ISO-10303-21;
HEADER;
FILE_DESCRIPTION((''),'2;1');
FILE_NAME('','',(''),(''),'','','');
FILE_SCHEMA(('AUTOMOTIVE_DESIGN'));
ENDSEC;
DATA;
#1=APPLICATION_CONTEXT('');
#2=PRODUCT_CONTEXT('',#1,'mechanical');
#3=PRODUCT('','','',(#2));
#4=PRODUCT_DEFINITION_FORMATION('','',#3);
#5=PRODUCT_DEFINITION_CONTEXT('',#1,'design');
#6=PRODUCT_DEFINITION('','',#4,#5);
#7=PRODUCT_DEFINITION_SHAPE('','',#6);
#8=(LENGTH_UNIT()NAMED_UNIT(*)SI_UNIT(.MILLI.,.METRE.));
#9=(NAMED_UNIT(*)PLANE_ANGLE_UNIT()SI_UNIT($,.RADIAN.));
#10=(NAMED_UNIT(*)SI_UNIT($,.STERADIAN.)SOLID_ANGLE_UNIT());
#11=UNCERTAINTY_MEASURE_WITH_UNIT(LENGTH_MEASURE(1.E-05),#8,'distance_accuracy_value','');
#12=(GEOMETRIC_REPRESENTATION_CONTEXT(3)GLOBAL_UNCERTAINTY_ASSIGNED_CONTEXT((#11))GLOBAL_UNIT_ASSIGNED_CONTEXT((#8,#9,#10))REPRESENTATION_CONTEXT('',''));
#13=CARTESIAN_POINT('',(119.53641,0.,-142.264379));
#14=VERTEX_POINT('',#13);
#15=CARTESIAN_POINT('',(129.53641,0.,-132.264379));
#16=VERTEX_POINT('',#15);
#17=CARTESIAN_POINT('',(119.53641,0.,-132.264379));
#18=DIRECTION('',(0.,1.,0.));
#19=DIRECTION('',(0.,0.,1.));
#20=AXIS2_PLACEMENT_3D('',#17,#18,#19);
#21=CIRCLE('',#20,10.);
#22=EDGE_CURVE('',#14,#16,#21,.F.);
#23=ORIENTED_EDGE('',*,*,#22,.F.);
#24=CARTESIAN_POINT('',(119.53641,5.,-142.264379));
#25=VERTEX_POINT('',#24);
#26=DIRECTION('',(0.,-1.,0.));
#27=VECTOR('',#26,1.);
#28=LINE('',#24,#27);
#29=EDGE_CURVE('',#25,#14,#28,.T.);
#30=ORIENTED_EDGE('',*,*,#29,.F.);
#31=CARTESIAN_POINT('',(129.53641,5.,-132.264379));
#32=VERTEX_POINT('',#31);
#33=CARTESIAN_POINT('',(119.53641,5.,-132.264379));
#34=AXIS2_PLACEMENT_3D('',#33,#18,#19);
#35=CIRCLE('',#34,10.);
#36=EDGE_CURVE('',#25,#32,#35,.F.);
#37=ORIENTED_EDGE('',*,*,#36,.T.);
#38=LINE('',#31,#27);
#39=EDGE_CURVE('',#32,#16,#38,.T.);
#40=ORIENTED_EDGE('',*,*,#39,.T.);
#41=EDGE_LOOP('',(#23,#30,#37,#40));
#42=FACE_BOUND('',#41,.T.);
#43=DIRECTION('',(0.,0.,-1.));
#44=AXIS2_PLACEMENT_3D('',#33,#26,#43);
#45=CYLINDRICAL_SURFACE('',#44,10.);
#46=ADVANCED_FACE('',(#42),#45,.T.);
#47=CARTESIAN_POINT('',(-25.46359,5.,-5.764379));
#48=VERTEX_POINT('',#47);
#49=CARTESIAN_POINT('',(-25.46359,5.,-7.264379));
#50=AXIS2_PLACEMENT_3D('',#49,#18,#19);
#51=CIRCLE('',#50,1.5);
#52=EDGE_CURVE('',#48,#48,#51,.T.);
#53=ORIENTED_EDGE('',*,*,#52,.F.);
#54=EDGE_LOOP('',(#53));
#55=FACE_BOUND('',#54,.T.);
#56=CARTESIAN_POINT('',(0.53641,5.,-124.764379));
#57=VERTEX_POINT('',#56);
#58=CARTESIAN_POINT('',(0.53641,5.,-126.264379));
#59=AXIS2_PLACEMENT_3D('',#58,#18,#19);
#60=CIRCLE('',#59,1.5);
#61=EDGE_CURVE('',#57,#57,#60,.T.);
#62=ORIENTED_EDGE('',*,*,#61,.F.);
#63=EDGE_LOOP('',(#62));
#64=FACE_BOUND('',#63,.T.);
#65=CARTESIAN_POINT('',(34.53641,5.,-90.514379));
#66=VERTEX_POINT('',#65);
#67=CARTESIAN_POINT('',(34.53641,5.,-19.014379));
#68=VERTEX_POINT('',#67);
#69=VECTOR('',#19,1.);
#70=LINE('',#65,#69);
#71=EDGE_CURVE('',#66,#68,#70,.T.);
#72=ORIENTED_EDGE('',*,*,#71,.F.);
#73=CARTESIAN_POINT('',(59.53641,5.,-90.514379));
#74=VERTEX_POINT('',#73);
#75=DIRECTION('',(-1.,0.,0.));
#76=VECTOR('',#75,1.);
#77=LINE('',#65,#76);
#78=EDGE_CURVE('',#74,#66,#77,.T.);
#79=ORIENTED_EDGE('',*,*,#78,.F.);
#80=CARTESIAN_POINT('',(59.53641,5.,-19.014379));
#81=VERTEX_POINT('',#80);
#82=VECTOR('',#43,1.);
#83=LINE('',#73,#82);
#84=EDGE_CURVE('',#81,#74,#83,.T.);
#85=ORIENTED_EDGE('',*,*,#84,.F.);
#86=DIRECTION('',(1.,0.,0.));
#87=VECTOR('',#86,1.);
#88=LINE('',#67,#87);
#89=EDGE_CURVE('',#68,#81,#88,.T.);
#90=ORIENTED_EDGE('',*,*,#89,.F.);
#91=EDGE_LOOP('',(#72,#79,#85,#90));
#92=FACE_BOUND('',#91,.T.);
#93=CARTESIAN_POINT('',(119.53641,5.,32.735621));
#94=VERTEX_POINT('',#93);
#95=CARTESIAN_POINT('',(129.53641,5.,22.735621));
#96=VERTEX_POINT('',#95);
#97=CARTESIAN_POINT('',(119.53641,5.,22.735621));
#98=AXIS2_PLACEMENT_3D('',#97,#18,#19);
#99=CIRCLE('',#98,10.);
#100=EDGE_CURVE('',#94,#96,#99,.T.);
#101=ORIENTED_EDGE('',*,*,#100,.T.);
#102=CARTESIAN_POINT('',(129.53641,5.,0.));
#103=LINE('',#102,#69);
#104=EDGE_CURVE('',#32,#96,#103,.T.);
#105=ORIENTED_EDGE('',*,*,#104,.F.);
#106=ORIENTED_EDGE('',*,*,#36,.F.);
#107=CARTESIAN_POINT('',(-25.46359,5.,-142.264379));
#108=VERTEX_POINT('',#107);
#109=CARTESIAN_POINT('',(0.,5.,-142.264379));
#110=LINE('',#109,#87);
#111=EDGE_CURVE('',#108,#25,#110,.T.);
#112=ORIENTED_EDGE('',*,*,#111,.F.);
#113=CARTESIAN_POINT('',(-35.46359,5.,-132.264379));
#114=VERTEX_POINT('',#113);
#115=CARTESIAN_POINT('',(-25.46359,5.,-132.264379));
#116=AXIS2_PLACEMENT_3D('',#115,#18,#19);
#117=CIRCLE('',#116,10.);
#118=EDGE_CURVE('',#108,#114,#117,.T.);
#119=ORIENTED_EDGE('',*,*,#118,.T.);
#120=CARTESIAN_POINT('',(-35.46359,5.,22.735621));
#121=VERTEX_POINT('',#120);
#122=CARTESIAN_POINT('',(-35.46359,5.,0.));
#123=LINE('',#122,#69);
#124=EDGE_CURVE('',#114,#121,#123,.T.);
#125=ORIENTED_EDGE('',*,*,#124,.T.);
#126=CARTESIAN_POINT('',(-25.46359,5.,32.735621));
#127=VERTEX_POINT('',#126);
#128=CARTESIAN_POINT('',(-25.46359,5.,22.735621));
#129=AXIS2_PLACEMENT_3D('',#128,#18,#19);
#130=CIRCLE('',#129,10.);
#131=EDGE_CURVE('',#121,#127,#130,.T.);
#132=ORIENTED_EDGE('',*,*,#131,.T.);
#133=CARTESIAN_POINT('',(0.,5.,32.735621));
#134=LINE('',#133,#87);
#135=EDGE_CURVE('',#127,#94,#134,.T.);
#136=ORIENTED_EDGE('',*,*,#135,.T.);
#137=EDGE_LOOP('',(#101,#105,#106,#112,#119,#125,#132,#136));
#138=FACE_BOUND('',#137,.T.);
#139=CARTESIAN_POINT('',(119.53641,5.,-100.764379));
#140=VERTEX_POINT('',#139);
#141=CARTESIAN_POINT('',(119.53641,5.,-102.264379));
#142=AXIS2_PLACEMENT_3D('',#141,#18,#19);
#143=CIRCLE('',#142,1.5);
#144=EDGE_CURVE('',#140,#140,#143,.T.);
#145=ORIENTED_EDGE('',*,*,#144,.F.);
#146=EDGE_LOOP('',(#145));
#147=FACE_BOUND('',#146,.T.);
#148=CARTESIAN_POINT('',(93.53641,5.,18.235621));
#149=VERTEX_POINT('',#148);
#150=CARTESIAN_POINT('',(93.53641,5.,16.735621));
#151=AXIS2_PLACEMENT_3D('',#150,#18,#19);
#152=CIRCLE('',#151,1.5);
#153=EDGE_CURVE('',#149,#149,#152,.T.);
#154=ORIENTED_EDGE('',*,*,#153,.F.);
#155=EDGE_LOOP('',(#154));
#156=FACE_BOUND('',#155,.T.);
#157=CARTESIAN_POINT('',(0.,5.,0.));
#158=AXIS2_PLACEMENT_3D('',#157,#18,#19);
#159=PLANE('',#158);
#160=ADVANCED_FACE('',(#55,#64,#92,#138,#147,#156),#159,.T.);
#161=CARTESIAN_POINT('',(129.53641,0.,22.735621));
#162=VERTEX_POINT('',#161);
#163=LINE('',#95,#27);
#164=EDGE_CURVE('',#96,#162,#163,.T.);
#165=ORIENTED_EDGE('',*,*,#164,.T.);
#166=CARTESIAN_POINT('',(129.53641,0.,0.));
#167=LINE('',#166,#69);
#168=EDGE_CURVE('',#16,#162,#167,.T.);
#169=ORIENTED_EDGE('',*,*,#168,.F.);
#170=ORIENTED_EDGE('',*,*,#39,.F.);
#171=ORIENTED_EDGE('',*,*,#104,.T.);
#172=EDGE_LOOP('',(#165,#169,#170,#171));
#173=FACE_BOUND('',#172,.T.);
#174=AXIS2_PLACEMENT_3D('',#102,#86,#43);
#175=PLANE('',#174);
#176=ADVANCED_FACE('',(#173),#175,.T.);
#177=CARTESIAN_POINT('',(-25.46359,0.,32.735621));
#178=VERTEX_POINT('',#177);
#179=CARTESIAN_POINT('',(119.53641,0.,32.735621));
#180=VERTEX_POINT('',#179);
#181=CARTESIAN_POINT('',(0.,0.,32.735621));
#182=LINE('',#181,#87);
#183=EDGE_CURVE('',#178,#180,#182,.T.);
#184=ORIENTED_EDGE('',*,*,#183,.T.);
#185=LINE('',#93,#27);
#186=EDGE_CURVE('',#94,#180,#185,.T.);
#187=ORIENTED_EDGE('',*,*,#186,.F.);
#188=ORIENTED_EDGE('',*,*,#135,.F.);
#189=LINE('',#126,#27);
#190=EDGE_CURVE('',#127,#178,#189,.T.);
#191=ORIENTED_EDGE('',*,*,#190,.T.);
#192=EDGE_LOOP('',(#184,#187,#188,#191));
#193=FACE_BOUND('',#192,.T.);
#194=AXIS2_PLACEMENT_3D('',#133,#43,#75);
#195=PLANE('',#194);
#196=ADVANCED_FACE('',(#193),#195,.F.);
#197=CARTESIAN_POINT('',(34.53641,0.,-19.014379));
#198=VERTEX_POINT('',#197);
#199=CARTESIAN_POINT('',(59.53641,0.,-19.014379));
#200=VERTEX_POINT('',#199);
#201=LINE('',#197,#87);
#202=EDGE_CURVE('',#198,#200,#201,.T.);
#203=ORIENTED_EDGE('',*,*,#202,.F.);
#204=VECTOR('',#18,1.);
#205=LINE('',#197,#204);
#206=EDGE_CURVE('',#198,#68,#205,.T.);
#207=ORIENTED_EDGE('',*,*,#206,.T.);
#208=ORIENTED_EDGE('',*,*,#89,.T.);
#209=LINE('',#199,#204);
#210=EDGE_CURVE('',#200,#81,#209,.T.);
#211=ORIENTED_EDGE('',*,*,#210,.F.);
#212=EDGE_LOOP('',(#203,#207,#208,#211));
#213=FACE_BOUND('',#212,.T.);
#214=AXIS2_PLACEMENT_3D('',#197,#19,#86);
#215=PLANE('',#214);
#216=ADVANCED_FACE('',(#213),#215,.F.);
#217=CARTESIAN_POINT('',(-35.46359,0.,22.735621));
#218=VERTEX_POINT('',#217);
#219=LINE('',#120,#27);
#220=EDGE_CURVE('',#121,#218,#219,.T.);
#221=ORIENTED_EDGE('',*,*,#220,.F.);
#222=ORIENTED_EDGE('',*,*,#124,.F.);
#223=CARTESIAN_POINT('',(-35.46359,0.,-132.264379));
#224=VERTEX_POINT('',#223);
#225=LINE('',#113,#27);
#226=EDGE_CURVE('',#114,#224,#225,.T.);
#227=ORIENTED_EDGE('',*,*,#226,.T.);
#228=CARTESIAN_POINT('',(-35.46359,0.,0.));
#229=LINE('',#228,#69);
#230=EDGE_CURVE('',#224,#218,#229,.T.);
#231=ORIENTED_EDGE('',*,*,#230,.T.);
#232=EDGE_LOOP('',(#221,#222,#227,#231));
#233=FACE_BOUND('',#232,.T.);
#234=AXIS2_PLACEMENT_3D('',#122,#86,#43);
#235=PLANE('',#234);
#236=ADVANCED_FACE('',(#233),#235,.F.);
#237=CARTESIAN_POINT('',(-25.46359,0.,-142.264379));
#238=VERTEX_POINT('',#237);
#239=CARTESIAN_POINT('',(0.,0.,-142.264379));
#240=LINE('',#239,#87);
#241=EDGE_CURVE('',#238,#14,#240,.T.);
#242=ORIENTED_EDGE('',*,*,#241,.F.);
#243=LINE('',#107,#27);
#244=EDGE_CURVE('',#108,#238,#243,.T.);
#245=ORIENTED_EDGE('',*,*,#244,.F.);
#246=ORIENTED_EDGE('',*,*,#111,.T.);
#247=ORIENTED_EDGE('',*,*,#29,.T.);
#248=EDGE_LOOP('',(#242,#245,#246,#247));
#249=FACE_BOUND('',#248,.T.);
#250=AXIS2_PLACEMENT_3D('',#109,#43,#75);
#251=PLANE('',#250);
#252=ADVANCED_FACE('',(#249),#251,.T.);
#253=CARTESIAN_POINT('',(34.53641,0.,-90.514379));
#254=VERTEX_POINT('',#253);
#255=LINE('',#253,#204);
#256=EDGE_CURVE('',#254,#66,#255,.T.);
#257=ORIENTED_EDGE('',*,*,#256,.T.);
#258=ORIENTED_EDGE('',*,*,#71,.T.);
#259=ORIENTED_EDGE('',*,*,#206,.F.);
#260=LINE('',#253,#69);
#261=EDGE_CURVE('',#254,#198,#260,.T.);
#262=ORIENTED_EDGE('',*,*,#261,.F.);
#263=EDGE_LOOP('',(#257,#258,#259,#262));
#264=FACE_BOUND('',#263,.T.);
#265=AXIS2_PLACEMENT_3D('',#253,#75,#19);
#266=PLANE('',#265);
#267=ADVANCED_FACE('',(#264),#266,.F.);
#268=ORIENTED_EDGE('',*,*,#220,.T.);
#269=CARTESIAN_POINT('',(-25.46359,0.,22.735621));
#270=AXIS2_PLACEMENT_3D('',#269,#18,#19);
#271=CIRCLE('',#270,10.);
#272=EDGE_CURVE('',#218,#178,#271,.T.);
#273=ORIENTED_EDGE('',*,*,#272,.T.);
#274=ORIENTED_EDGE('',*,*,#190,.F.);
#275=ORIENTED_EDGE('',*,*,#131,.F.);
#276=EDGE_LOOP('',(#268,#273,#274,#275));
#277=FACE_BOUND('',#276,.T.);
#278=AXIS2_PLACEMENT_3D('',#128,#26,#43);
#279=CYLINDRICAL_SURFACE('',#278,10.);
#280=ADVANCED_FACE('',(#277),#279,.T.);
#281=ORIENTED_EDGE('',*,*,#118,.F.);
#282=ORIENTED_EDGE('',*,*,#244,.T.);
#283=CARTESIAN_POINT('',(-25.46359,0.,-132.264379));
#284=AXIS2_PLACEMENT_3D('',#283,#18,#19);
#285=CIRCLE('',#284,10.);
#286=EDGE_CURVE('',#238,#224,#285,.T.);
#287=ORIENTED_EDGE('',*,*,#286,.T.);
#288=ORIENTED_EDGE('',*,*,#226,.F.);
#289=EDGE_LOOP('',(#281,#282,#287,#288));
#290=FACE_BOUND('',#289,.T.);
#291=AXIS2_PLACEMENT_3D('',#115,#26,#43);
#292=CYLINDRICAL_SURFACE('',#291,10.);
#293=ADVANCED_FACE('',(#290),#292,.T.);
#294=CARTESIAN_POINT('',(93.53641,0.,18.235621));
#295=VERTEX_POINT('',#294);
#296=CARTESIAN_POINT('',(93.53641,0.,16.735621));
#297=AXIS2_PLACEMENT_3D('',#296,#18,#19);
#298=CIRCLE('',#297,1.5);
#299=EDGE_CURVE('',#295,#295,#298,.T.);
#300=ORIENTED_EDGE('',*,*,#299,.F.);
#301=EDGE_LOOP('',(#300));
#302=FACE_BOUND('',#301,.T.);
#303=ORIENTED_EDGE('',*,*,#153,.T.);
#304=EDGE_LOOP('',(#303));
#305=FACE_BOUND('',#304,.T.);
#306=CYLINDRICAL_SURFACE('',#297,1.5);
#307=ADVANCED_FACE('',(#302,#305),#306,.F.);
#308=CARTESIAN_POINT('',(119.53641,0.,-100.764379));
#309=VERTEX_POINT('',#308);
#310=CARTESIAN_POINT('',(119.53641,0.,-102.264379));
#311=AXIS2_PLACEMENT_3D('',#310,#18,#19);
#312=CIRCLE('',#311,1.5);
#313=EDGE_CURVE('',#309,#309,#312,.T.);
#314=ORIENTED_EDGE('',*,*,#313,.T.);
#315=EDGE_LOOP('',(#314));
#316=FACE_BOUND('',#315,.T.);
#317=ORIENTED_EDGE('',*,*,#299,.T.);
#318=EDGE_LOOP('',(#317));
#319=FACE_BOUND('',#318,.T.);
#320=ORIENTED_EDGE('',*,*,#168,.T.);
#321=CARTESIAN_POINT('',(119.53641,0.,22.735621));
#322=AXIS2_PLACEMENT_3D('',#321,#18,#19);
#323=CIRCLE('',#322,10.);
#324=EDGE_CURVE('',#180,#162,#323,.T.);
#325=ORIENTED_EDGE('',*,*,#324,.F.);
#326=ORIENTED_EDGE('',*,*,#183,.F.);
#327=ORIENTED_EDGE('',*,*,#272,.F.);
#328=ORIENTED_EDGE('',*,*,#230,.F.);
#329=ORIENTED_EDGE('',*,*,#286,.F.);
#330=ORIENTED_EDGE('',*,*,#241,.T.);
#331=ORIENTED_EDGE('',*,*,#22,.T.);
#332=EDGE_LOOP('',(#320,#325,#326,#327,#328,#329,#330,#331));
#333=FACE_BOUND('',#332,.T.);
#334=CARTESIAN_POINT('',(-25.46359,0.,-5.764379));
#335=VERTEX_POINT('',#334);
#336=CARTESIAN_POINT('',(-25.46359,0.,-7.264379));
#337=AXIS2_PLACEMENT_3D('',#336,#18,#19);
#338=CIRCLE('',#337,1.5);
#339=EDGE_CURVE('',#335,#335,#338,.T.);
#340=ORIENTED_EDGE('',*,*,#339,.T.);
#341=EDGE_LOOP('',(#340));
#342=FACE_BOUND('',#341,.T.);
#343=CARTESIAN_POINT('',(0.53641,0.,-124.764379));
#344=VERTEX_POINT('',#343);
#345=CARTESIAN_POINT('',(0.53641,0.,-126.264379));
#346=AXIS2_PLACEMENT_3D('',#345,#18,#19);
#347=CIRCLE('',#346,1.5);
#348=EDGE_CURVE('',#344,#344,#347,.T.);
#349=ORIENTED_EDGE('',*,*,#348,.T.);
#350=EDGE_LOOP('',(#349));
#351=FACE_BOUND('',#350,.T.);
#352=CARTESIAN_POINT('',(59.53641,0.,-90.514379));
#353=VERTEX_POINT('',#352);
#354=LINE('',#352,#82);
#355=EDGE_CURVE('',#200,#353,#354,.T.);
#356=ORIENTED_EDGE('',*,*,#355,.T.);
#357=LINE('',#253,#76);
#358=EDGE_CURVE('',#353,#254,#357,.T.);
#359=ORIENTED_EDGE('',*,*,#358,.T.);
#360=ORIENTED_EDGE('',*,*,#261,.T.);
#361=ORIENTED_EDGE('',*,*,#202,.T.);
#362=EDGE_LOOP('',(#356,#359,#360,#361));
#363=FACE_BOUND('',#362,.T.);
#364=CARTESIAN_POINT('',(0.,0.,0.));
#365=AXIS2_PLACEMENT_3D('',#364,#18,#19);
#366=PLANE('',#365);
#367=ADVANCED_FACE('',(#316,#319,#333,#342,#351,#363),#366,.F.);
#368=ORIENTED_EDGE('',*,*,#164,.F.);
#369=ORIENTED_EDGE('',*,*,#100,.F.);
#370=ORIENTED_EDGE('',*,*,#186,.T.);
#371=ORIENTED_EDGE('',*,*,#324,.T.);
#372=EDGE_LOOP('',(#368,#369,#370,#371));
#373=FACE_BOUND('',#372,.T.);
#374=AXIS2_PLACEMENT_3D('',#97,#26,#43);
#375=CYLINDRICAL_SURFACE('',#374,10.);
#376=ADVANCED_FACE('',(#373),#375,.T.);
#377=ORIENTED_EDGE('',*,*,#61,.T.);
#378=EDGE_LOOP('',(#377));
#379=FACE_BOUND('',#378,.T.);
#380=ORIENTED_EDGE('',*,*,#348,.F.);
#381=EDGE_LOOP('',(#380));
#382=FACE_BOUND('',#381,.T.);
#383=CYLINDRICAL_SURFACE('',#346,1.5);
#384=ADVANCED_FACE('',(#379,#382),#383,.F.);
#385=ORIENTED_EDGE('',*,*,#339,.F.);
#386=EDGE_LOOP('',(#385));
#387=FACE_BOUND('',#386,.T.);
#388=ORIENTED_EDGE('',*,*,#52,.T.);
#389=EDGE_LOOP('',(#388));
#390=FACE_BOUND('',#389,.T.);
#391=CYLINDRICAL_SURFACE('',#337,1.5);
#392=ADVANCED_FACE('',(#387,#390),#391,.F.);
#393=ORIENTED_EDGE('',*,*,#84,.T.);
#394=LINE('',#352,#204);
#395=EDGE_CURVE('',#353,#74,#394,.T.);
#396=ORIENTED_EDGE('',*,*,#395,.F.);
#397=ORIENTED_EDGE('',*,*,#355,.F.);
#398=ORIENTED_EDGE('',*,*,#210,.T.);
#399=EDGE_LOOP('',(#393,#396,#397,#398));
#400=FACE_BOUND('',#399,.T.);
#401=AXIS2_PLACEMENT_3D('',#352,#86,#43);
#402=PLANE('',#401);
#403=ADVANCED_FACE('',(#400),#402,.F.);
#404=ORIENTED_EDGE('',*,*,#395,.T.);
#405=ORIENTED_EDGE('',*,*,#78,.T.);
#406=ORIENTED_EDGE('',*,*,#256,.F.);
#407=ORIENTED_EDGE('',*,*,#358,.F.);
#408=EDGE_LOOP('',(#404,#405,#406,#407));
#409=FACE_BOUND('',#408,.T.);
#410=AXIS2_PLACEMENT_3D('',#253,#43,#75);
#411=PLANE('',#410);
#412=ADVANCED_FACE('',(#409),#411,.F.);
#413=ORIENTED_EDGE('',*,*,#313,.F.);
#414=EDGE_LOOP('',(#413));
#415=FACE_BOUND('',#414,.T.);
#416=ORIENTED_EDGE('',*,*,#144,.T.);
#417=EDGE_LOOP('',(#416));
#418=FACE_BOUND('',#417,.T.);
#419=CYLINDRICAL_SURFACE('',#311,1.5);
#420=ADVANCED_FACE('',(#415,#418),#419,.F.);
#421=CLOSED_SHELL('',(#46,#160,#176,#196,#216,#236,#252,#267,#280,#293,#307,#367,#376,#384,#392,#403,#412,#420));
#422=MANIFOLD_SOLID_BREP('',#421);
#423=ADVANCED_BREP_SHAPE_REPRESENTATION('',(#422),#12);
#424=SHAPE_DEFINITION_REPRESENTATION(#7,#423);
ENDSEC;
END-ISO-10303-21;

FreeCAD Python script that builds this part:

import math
import FreeCAD as App
import Part
import Sketcher

doc = App.newDocument("Part")
body = doc.addObject("PartDesign::Body", "Body")

# Sketch on XZ plane
sketch1 = doc.addObject("Sketcher::SketchObject", "Sketch")
body.addObject(sketch1)
sketch1.AttachmentSupport = (doc.XZ_Plane, [""])
sketch1.MapMode = "FlatFace"
sketch1.addGeometry([
    Part.LineSegment(App.Vector(120, -142, 0), App.Vector(-25, -142, 0)),  # 0
    Part.ArcOfCircle(Part.Circle(App.Vector(-25, -132, 0), App.Vector(0, 0, 1), 10), math.radians(180), math.radians(270)),  # 1
    Part.LineSegment(App.Vector(-35, -132, 0), App.Vector(-35, 23, 0)),  # 2
    Part.ArcOfCircle(Part.Circle(App.Vector(-25, 23, 0), App.Vector(0, 0, 1), 10), math.radians(90), math.radians(180)),  # 3
    Part.LineSegment(App.Vector(-25, 33, 0), App.Vector(120, 33, 0)),  # 4
    Part.ArcOfCircle(Part.Circle(App.Vector(120, 23, 0), App.Vector(0, 0, 1), 10), math.radians(0), math.radians(90)),  # 5
    Part.LineSegment(App.Vector(130, 23, 0), App.Vector(130, -132, 0)),  # 6
    Part.ArcOfCircle(Part.Circle(App.Vector(120, -132, 0), App.Vector(0, 0, 1), 10), math.radians(-90), math.radians(0)),  # 7
], False)
sketch1.addConstraint([
    Sketcher.Constraint("Tangent", 0, 2, 1, 2),
    Sketcher.Constraint("Tangent", 1, 1, 2, 1),
    Sketcher.Constraint("Tangent", 2, 2, 3, 2),
    Sketcher.Constraint("Tangent", 3, 1, 4, 1),
    Sketcher.Constraint("Tangent", 4, 2, 5, 2),
    Sketcher.Constraint("Tangent", 5, 1, 6, 1),
    Sketcher.Constraint("Tangent", 6, 2, 7, 2),
    Sketcher.Constraint("Tangent", 7, 1, 0, 1),
    Sketcher.Constraint("Horizontal", 0),
    Sketcher.Constraint("Vertical", 2),
    Sketcher.Constraint("Horizontal", 4),
    Sketcher.Constraint("Vertical", 6),
    Sketcher.Constraint("Equal", 1, 3),
    Sketcher.Constraint("Equal", 3, 5),
    Sketcher.Constraint("Equal", 5, 7),
    Sketcher.Constraint("Radius", 1, 10.0),
    Sketcher.Constraint("DistanceX", 0, 2, 0, 1, 145.0),
    Sketcher.Constraint("DistanceY", 2, 1, 2, 2, 155.0),
    Sketcher.Constraint("DistanceX", 1, 3, -1, 1, 25.46359),
    Sketcher.Constraint("DistanceY", 1, 3, -1, 1, 132.264379),
])
pad1 = doc.addObject("PartDesign::Pad", "Pad")
body.addObject(pad1)
pad1.Profile = sketch1
pad1.Length = 5
pad1.Reversed = True

# Sketch on XZ plane
sketch2 = doc.addObject("Sketcher::SketchObject", "Sketch001")
body.addObject(sketch2)
sketch2.AttachmentSupport = (doc.XZ_Plane, [""])
sketch2.MapMode = "FlatFace"
sketch2.AttachmentOffset = App.Placement(App.Vector(0, 0, -5), App.Rotation())
sketch2.addGeometry([
    Part.Circle(App.Vector(-25.5, -7.3, 0), App.Vector(0, 0, 1), 1.5),
    Part.Circle(App.Vector(0.5, -126.3, 0), App.Vector(0, 0, 1), 1.5),
    Part.Circle(App.Vector(119.5, -102.3, 0), App.Vector(0, 0, 1), 1.5),
    Part.Circle(App.Vector(93.5, 16.7, 0), App.Vector(0, 0, 1), 1.5),
], False)
sketch2.addConstraint([
    Sketcher.Constraint("Equal", 0, 1),
    Sketcher.Constraint("Equal", 1, 2),
    Sketcher.Constraint("Equal", 2, 3),
    Sketcher.Constraint("Diameter", 0, 3.0),
    Sketcher.Constraint("DistanceX", 0, 3, 1, 3, 26.0),
    Sketcher.Constraint("DistanceY", 1, 3, 0, 3, 119.0),
    Sketcher.Constraint("DistanceX", 1, 3, 2, 3, 119.0),
    Sketcher.Constraint("DistanceY", 1, 3, 2, 3, 24.0),
    Sketcher.Constraint("DistanceX", 0, 3, 3, 3, 119.0),
    Sketcher.Constraint("DistanceY", 0, 3, 3, 3, 24.0),
    Sketcher.Constraint("DistanceX", 0, 3, -1, 1, 25.46359),
    Sketcher.Constraint("DistanceY", 0, 3, -1, 1, 7.264379),
])
pocket1 = doc.addObject("PartDesign::Pocket", "Pocket")
body.addObject(pocket1)
pocket1.Profile = sketch2
pocket1.Length = 5
pocket1.Reversed = True

# Sketch on XZ plane
sketch3 = doc.addObject("Sketcher::SketchObject", "Sketch002")
body.addObject(sketch3)
sketch3.AttachmentSupport = (doc.XZ_Plane, [""])
sketch3.MapMode = "FlatFace"
sketch3.AttachmentOffset = App.Placement(App.Vector(0, 0, -5), App.Rotation())
sketch3.addGeometry([
    Part.LineSegment(App.Vector(35, -91, 0), App.Vector(35, -19, 0)),
    Part.LineSegment(App.Vector(35, -19, 0), App.Vector(60, -19, 0)),
    Part.LineSegment(App.Vector(60, -19, 0), App.Vector(60, -91, 0)),
    Part.LineSegment(App.Vector(60, -91, 0), App.Vector(35, -91, 0)),
], False)
sketch3.addConstraint([
    Sketcher.Constraint("Coincident", 0, 2, 1, 1),
    Sketcher.Constraint("Coincident", 1, 2, 2, 1),
    Sketcher.Constraint("Coincident", 2, 2, 3, 1),
    Sketcher.Constraint("Coincident", 3, 2, 0, 1),
    Sketcher.Constraint("Vertical", 0),
    Sketcher.Constraint("Horizontal", 1),
    Sketcher.Constraint("Vertical", 2),
    Sketcher.Constraint("Horizontal", 3),
    Sketcher.Constraint("DistanceX", 1, 1, 1, 2, 25.0),
    Sketcher.Constraint("DistanceY", 0, 1, 0, 2, 71.5),
    Sketcher.Constraint("DistanceX", -1, 1, 0, 2, 34.53641),
    Sketcher.Constraint("DistanceY", 0, 2, -1, 1, 19.014379),
])
pocket2 = doc.addObject("PartDesign::Pocket", "Pocket001")
body.addObject(pocket2)
pocket2.Profile = sketch3
pocket2.Length = 5
pocket2.Reversed = True

doc.recompute()
